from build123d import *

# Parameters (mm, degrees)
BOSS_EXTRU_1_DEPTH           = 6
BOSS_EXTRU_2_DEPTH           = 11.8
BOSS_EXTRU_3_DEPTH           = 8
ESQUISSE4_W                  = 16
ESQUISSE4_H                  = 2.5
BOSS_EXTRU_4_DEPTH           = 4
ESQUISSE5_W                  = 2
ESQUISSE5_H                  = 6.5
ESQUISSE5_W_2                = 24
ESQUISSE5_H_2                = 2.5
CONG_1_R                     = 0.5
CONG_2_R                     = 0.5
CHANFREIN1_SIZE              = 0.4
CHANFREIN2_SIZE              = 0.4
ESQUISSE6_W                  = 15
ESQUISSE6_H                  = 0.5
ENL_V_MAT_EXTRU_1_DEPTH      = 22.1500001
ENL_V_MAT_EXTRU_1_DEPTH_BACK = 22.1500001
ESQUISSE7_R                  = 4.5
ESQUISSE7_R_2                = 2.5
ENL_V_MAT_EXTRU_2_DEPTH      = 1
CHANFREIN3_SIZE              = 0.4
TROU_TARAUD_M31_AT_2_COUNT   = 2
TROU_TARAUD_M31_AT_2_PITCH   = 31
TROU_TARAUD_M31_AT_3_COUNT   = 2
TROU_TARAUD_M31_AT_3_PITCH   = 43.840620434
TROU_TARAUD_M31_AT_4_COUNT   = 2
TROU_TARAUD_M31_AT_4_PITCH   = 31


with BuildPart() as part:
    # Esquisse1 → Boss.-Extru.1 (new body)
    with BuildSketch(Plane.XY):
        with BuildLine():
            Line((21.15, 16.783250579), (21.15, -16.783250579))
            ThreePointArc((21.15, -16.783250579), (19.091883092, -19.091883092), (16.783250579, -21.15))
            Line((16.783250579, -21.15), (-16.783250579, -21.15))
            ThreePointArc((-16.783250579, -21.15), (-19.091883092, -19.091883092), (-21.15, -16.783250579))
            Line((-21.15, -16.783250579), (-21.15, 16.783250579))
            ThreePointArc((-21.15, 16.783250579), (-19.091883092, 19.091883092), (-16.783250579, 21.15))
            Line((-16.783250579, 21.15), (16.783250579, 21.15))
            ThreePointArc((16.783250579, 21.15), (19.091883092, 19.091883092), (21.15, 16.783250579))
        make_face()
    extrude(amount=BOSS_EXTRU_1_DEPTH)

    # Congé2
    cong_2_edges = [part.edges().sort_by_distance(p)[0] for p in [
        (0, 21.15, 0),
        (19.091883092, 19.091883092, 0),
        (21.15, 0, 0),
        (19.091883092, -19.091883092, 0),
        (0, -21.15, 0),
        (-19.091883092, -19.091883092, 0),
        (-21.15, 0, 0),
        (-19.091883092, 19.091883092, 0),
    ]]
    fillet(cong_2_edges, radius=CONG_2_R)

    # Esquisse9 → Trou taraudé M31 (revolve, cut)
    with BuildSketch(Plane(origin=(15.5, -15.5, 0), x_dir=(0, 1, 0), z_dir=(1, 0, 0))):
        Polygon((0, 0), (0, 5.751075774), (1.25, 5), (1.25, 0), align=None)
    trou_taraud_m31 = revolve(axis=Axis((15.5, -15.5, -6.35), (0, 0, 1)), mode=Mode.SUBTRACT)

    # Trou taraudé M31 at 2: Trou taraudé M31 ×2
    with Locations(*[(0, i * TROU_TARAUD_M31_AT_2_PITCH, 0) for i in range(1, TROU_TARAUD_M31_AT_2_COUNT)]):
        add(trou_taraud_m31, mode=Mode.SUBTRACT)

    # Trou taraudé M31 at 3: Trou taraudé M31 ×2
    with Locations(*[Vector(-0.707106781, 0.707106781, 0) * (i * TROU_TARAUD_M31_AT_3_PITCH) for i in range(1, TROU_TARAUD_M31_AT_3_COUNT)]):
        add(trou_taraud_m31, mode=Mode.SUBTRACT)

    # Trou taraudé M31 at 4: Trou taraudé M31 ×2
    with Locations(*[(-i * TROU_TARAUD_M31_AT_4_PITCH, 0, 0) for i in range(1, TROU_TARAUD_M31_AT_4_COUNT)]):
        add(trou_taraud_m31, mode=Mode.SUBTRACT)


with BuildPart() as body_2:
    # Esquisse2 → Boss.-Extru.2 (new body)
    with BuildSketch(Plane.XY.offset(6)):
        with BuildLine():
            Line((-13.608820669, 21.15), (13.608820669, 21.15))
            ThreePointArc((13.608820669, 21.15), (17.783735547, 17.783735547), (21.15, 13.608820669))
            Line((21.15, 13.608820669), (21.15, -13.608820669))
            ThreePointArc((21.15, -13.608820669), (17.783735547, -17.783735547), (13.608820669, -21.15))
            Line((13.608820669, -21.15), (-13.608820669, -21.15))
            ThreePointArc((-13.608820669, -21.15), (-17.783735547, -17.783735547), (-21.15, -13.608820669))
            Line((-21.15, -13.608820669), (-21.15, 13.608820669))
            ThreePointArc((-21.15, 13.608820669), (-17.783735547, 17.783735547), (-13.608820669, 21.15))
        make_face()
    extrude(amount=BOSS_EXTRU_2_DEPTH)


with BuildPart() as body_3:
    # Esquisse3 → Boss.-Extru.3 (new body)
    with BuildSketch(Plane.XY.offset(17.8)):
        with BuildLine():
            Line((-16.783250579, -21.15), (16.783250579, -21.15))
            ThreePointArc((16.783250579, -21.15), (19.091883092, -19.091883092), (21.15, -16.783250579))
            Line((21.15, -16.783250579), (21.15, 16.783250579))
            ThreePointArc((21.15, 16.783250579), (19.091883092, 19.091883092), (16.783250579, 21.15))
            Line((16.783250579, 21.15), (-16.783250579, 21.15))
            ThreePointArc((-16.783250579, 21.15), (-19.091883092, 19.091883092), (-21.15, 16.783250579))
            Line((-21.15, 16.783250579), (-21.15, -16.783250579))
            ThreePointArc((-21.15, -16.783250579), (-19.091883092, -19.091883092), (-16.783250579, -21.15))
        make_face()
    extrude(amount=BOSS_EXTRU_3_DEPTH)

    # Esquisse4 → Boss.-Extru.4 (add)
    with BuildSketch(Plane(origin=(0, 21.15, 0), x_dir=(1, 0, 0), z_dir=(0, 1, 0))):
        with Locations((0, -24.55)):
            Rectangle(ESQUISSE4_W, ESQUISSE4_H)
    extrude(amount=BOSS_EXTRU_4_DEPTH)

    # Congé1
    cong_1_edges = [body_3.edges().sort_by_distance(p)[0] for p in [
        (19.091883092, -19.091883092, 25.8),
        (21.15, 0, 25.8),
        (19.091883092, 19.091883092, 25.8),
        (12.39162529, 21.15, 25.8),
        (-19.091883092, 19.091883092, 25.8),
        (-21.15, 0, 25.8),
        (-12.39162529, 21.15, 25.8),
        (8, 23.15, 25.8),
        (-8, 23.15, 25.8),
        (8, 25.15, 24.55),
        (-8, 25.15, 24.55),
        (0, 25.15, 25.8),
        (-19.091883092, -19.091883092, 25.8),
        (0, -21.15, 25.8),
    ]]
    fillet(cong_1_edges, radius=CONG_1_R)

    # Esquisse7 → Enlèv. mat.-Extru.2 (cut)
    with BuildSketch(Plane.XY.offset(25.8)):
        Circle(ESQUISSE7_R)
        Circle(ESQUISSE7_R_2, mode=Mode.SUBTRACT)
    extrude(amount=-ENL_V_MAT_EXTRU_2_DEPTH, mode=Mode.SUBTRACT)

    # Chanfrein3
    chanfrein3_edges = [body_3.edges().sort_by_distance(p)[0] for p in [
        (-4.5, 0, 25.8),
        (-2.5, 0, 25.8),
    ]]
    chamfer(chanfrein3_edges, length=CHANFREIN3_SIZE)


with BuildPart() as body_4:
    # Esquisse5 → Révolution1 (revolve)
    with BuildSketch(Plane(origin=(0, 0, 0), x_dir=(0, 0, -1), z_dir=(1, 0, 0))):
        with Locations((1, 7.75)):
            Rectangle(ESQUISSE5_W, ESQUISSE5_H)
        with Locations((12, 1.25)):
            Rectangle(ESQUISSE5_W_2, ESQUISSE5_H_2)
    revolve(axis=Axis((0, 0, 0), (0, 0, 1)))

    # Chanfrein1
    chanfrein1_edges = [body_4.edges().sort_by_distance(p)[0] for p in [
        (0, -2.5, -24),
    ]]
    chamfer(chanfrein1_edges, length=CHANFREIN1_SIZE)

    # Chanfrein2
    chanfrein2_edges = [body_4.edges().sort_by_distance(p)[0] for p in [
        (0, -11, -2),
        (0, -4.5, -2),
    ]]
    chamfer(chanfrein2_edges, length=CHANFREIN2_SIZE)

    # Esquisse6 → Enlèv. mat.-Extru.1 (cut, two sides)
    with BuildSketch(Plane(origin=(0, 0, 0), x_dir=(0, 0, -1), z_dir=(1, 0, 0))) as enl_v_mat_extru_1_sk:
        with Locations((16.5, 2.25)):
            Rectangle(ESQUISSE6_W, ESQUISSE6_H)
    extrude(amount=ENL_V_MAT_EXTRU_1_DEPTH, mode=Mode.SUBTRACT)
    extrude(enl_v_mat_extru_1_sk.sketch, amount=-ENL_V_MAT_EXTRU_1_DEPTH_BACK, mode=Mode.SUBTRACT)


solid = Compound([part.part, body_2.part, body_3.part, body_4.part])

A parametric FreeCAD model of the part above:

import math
import FreeCAD as App
import Part
import Sketcher
Q = App.Units.Quantity


def edges_at(feature, points):
    """Names of the edges that pass closest to the given points."""
    edges = feature.Shape.Edges
    near = lambda p: min(range(len(edges)), key=lambda i: edges[i].distToShape(Part.Vertex(*p))[0])
    return sorted({f"Edge{near(p) + 1}" for p in points})


def add_polygon(sketch, points):
    """Adds a closed chain of lines whose ends are joined by coincident constraints."""
    first, n = sketch.GeometryCount, len(points)
    for a, b in zip(points, points[1:] + points[:1]):
        sketch.addGeometry(Part.LineSegment(App.Vector(*a, 0), App.Vector(*b, 0)), False)
    for i in range(n):
        sketch.addConstraint(Sketcher.Constraint("Coincident", first + i, 2, first + (i + 1) % n, 1))

doc = App.newDocument("Part")
body = doc.addObject("PartDesign::Body", "Body")

sketch1 = body.newObject("Sketcher::SketchObject", "Sketch")
sketch1.AttachmentSupport = (doc.getObject("XY_Plane"), [""])
sketch1.MapMode = "FlatFace"
sketch1.addGeometry([
    Part.LineSegment(App.Vector(21.15, -16.783251, 0), App.Vector(21.15, 16.783251, 0)),
    Part.ArcOfCircle(Part.Circle(App.Vector(0, 0, 0), App.Vector(0, 0, 1), 27), math.radians(38.433206), math.radians(51.566794)),
    Part.LineSegment(App.Vector(16.783251, 21.15, 0), App.Vector(-16.783251, 21.15, 0)),
    Part.ArcOfCircle(Part.Circle(App.Vector(0, 0, 0), App.Vector(0, 0, 1), 27), math.radians(128.433206), math.radians(141.566794)),
    Part.LineSegment(App.Vector(-21.15, 16.783251, 0), App.Vector(-21.15, -16.783251, 0)),
    Part.ArcOfCircle(Part.Circle(App.Vector(0, 0, 0), App.Vector(0, 0, 1), 27), math.radians(-141.566794), math.radians(-128.433206)),
    Part.LineSegment(App.Vector(-16.783251, -21.15, 0), App.Vector(16.783251, -21.15, 0)),
    Part.ArcOfCircle(Part.Circle(App.Vector(0, 0, 0), App.Vector(0, 0, 1), 27), math.radians(-51.566794), math.radians(-38.433206)),
], False)
sketch1.addConstraint([
    Sketcher.Constraint("Coincident", 0, 2, 1, 1),
    Sketcher.Constraint("Coincident", 1, 2, 2, 1),
    Sketcher.Constraint("Coincident", 2, 2, 3, 1),
    Sketcher.Constraint("Coincident", 3, 2, 4, 1),
    Sketcher.Constraint("Coincident", 4, 2, 5, 1),
    Sketcher.Constraint("Coincident", 5, 2, 6, 1),
    Sketcher.Constraint("Coincident", 6, 2, 7, 1),
    Sketcher.Constraint("Coincident", 7, 2, 0, 1),
    Sketcher.Constraint("Vertical", 0),
    Sketcher.Constraint("Horizontal", 2),
    Sketcher.Constraint("Vertical", 4),
    Sketcher.Constraint("Horizontal", 6),
    Sketcher.Constraint("Coincident", 1, 3, -1, 1),
    Sketcher.Constraint("Coincident", 3, 3, -1, 1),
    Sketcher.Constraint("Coincident", 5, 3, -1, 1),
    Sketcher.Constraint("Coincident", 7, 3, -1, 1),
    Sketcher.Constraint("Equal", 1, 3),
    Sketcher.Constraint("Equal", 3, 5),
    Sketcher.Constraint("Equal", 5, 7),
    Sketcher.Constraint("Horizontal", 0, 2, 3, 2),
    Sketcher.Constraint("Vertical", 2, 2, 5, 2),
    Sketcher.Constraint("Equal", 6, 0),
    Sketcher.Constraint("Radius", 1, Q("27 mm")),
    Sketcher.Constraint("DistanceX", -1, 1, 0, 2, Q("21.15 mm")),
])
pad1 = body.newObject("PartDesign::Pad", "Pad")
pad1.Profile = sketch1
pad1.Length = 6
doc.recompute()

fillet = body.newObject("PartDesign::Fillet", "Fillet")
fillet.Base = (pad1, edges_at(pad1, [
    (0, 21.15, 0),
    (19.092, 19.092, 0),
    (21.15, 0, 0),
    (19.092, -19.092, 0),
    (0, -21.15, 0),
    (-19.092, -19.092, 0),
    (-21.15, 0, 0),
    (-19.092, 19.092, 0),
]))
fillet.Radius = 0.5

sketch2 = body.newObject("Sketcher::SketchObject", "Sketch001")
sketch2.AttachmentSupport = (doc.getObject("YZ_Plane"), [""])
sketch2.MapMode = "FlatFace"
sketch2.AttachmentOffset = App.Placement(App.Vector(0, 0, 15.5), App.Rotation())
add_polygon(sketch2, [(-15.5, 5.751076), (-15.5, 0), (-14.25, 0), (-14.25, 5)])
sketch2.addGeometry(Part.LineSegment(App.Vector(-15.5, 0, 0), App.Vector(-15.5, 5.751076, 0)), True)
sketch2.addConstraint([
    Sketcher.Constraint("Vertical", 0),
    Sketcher.Constraint("Horizontal", 1),
    Sketcher.Constraint("Vertical", 2),
    Sketcher.Constraint("Vertical", 4),
    Sketcher.Constraint("Coincident", 4, 1, 0, 2),
    Sketcher.Constraint("PointOnObject", 0, 2, -1),
    Sketcher.Constraint("Equal", 0, 4),
    Sketcher.Constraint("DistanceY", 2, 1, 2, 2, Q("5 mm")),
    Sketcher.Constraint("Angle", 3, Q("149 deg")),
    Sketcher.Constraint("DistanceX", 1, 1, 1, 2, Q("1.25 mm")),
    Sketcher.Constraint("DistanceX", 0, 2, -1, 1, Q("15.5 mm")),
])
groove = body.newObject("PartDesign::Groove", "Groove")
groove.Profile = sketch2
groove.ReferenceAxis = (sketch2, ["Axis0"])
groove.Angle = 360
doc.recompute()

linearpattern = body.newObject("PartDesign::LinearPattern", "LinearPattern")
linearpattern.Originals = [groove]
linearpattern.Direction = (doc.getObject("Y_Axis"), [""])
linearpattern.Mode = "offset"
linearpattern.Offset = 31
linearpattern.Occurrences = 2
body.Tip = linearpattern
doc.recompute()

datumline = body.newObject("PartDesign::Line", "DatumLine")
datumline.Placement = App.Placement(App.Vector(0, 0, 0), App.Rotation(App.Vector(0, 0, 1), App.Vector(-0.707106781, 0.707106781, 0)))
linearpattern2 = body.newObject("PartDesign::LinearPattern", "LinearPattern001")
linearpattern2.Originals = [groove]
linearpattern2.Direction = (datumline, [""])
linearpattern2.Mode = "offset"
linearpattern2.Offset = 43.84062
linearpattern2.Occurrences = 2
body.Tip = linearpattern2
doc.recompute()

linearpattern3 = body.newObject("PartDesign::LinearPattern", "LinearPattern002")
linearpattern3.Originals = [groove]
linearpattern3.Direction = (doc.getObject("X_Axis"), [""])
linearpattern3.Mode = "offset"
linearpattern3.Offset = 31
linearpattern3.Occurrences = 2
linearpattern3.Reversed = True
body.Tip = linearpattern3
body2 = doc.addObject("PartDesign::Body", "Body001")

sketch3 = body2.newObject("Sketcher::SketchObject", "Sketch002")
sketch3.AttachmentSupport = (doc.getObject("XY_Plane001"), [""])
sketch3.MapMode = "FlatFace"
sketch3.AttachmentOffset = App.Placement(App.Vector(0, 0, 6), App.Rotation())
sketch3.addGeometry([
    Part.LineSegment(App.Vector(13.608821, 21.15, 0), App.Vector(-13.608821, 21.15, 0)),
    Part.ArcOfCircle(Part.Circle(App.Vector(0, 0, 0), App.Vector(0, 0, 1), 25.15), math.radians(122.758974), math.radians(147.241026)),
    Part.LineSegment(App.Vector(-21.15, 13.608821, 0), App.Vector(-21.15, -13.608821, 0)),
    Part.ArcOfCircle(Part.Circle(App.Vector(0, 0, 0), App.Vector(0, 0, 1), 25.15), math.radians(-147.241026), math.radians(-122.758974)),
    Part.LineSegment(App.Vector(-13.608821, -21.15, 0), App.Vector(13.608821, -21.15, 0)),
    Part.ArcOfCircle(Part.Circle(App.Vector(0, 0, 0), App.Vector(0, 0, 1), 25.15), math.radians(-57.241026), math.radians(-32.758974)),
    Part.LineSegment(App.Vector(21.15, -13.608821, 0), App.Vector(21.15, 13.608821, 0)),
    Part.ArcOfCircle(Part.Circle(App.Vector(0, 0, 0), App.Vector(0, 0, 1), 25.15), math.radians(32.758974), math.radians(57.241026)),
], False)
sketch3.addConstraint([
    Sketcher.Constraint("Coincident", 0, 2, 1, 1),
    Sketcher.Constraint("Coincident", 1, 2, 2, 1),
    Sketcher.Constraint("Coincident", 2, 2, 3, 1),
    Sketcher.Constraint("Coincident", 3, 2, 4, 1),
    Sketcher.Constraint("Coincident", 4, 2, 5, 1),
    Sketcher.Constraint("Coincident", 5, 2, 6, 1),
    Sketcher.Constraint("Coincident", 6, 2, 7, 1),
    Sketcher.Constraint("Coincident", 7, 2, 0, 1),
    Sketcher.Constraint("Horizontal", 0),
    Sketcher.Constraint("Vertical", 2),
    Sketcher.Constraint("Horizontal", 4),
    Sketcher.Constraint("Vertical", 6),
    Sketcher.Constraint("Coincident", 1, 3, -1, 1),
    Sketcher.Constraint("Coincident", 3, 3, -1, 1),
    Sketcher.Constraint("Coincident", 5, 3, -1, 1),
    Sketcher.Constraint("Coincident", 7, 3, -1, 1),
    Sketcher.Constraint("Equal", 1, 3),
    Sketcher.Constraint("Equal", 3, 5),
    Sketcher.Constraint("Equal", 5, 7),
    Sketcher.Constraint("Horizontal", 2, 2, 5, 2),
    Sketcher.Constraint("Vertical", 0, 2, 3, 2),
    Sketcher.Constraint("Equal", 4, 2),
    Sketcher.Constraint("Radius", 1, Q("25.15 mm")),
    Sketcher.Constraint("DistanceY", -1, 1, 0, 2, Q("21.15 mm")),
])
pad2 = body2.newObject("PartDesign::Pad", "Pad001")
pad2.Profile = sketch3
pad2.Length = 11.8
body3 = doc.addObject("PartDesign::Body", "Body002")

sketch4 = body3.newObject("Sketcher::SketchObject", "Sketch003")
sketch4.AttachmentSupport = (doc.getObject("XY_Plane002"), [""])
sketch4.MapMode = "FlatFace"
sketch4.AttachmentOffset = App.Placement(App.Vector(0, 0, 17.8), App.Rotation())
sketch4.addGeometry([
    Part.LineSegment(App.Vector(-16.783251, -21.15, 0), App.Vector(16.783251, -21.15, 0)),
    Part.ArcOfCircle(Part.Circle(App.Vector(0, 0, 0), App.Vector(0, 0, 1), 27), math.radians(-51.566794), math.radians(-38.433206)),
    Part.LineSegment(App.Vector(21.15, -16.783251, 0), App.Vector(21.15, 16.783251, 0)),
    Part.ArcOfCircle(Part.Circle(App.Vector(0, 0, 0), App.Vector(0, 0, 1), 27), math.radians(38.433206), math.radians(51.566794)),
    Part.LineSegment(App.Vector(16.783251, 21.15, 0), App.Vector(-16.783251, 21.15, 0)),
    Part.ArcOfCircle(Part.Circle(App.Vector(0, 0, 0), App.Vector(0, 0, 1), 27), math.radians(128.433206), math.radians(141.566794)),
    Part.LineSegment(App.Vector(-21.15, 16.783251, 0), App.Vector(-21.15, -16.783251, 0)),
    Part.ArcOfCircle(Part.Circle(App.Vector(0, 0, 0), App.Vector(0, 0, 1), 27), math.radians(-141.566794), math.radians(-128.433206)),
], False)
sketch4.addConstraint([
    Sketcher.Constraint("Coincident", 0, 2, 1, 1),
    Sketcher.Constraint("Coincident", 1, 2, 2, 1),
    Sketcher.Constraint("Coincident", 2, 2, 3, 1),
    Sketcher.Constraint("Coincident", 3, 2, 4, 1),
    Sketcher.Constraint("Coincident", 4, 2, 5, 1),
    Sketcher.Constraint("Coincident", 5, 2, 6, 1),
    Sketcher.Constraint("Coincident", 6, 2, 7, 1),
    Sketcher.Constraint("Coincident", 7, 2, 0, 1),
    Sketcher.Constraint("Horizontal", 0),
    Sketcher.Constraint("Vertical", 2),
    Sketcher.Constraint("Horizontal", 4),
    Sketcher.Constraint("Vertical", 6),
    Sketcher.Constraint("Coincident", 1, 3, -1, 1),
    Sketcher.Constraint("Coincident", 3, 3, -1, 1),
    Sketcher.Constraint("Coincident", 5, 3, -1, 1),
    Sketcher.Constraint("Coincident", 7, 3, -1, 1),
    Sketcher.Constraint("Equal", 1, 3),
    Sketcher.Constraint("Equal", 3, 5),
    Sketcher.Constraint("Equal", 5, 7),
    Sketcher.Constraint("Horizontal", 2, 2, 5, 2),
    Sketcher.Constraint("Vertical", 0, 2, 3, 2),
    Sketcher.Constraint("Equal", 4, 2),
    Sketcher.Constraint("Radius", 1, Q("27 mm")),
    Sketcher.Constraint("DistanceY", 0, 2, -1, 1, Q("21.15 mm")),
])
pad3 = body3.newObject("PartDesign::Pad", "Pad002")
pad3.Profile = sketch4
pad3.Length = 8

sketch5 = body3.newObject("Sketcher::SketchObject", "Sketch004")
sketch5.AttachmentSupport = (doc.getObject("XZ_Plane002"), [""])
sketch5.MapMode = "FlatFace"
sketch5.AttachmentOffset = App.Placement(App.Vector(0, 0, -21.15), App.Rotation())
add_polygon(sketch5, [(-8, 23.3), (-8, 25.8), (8, 25.8), (8, 23.3)])
sketch5.addConstraint([
    Sketcher.Constraint("Vertical", 0),
    Sketcher.Constraint("Horizontal", 1),
    Sketcher.Constraint("Vertical", 2),
    Sketcher.Constraint("Horizontal", 3),
    Sketcher.Constraint("DistanceX", 1, 1, 1, 2, Q("16 mm")),
    Sketcher.Constraint("DistanceY", 0, 1, 0, 2, Q("2.5 mm")),
    Sketcher.Constraint("DistanceX", 0, 2, -1, 1, Q("8 mm")),
    Sketcher.Constraint("DistanceY", -1, 1, 0, 2, Q("25.8 mm")),
])
pad4 = body3.newObject("PartDesign::Pad", "Pad003")
pad4.Profile = sketch5
pad4.Length = 4
pad4.Reversed = True
doc.recompute()

fillet2 = body3.newObject("PartDesign::Fillet", "Fillet001")
fillet2.Base = (pad4, edges_at(pad4, [
    (19.092, -19.092, 25.8),
    (21.15, 0, 25.8),
    (19.092, 19.092, 25.8),
    (12.392, 21.15, 25.8),
    (-19.092, 19.092, 25.8),
    (-21.15, 0, 25.8),
    (-12.392, 21.15, 25.8),
    (8, 23.15, 25.8),
    (-8, 23.15, 25.8),
    (8, 25.15, 24.55),
    (-8, 25.15, 24.55),
    (0, 25.15, 25.8),
    (-19.092, -19.092, 25.8),
    (0, -21.15, 25.8),
]))
fillet2.Radius = 0.5

sketch6 = body3.newObject("Sketcher::SketchObject", "Sketch005")
sketch6.AttachmentSupport = (doc.getObject("XY_Plane002"), [""])
sketch6.MapMode = "FlatFace"
sketch6.AttachmentOffset = App.Placement(App.Vector(0, 0, 25.8), App.Rotation())
sketch6.addGeometry([
    Part.Circle(App.Vector(0, 0, 0), App.Vector(0, 0, 1), 4.5),
    Part.Circle(App.Vector(0, 0, 0), App.Vector(0, 0, 1), 2.5),
], False)
sketch6.addConstraint([
    Sketcher.Constraint("Coincident", 0, 3, -1, 1),
    Sketcher.Constraint("Coincident", 1, 3, -1, 1),
    Sketcher.Constraint("Diameter", 0, Q("9 mm")),
    Sketcher.Constraint("Diameter", 1, Q("5 mm")),
])
pocket1 = body3.newObject("PartDesign::Pocket", "Pocket")
pocket1.Profile = sketch6
pocket1.Length = 1
doc.recompute()

chamfer = body3.newObject("PartDesign::Chamfer", "Chamfer")
chamfer.Base = (pocket1, edges_at(pocket1, [(-4.5, 0, 25.8), (-2.5, 0, 25.8)]))
chamfer.Size = 0.4
body4 = doc.addObject("PartDesign::Body", "Body003")
body4.AllowCompound = True

sketch7 = body4.newObject("Sketcher::SketchObject", "Sketch006")
sketch7.AttachmentSupport = (doc.getObject("YZ_Plane003"), [""])
sketch7.MapMode = "FlatFace"
add_polygon(sketch7, [(11, 0), (4.5, 0), (4.5, -2), (11, -2)])
add_polygon(sketch7, [(2.5, 0), (0, 0), (0, -24), (2.5, -24)])
sketch7.addConstraint([
    Sketcher.Constraint("Horizontal", 0),
    Sketcher.Constraint("Vertical", 1),
    Sketcher.Constraint("Horizontal", 2),
    Sketcher.Constraint("Vertical", 3),
    Sketcher.Constraint("Horizontal", 4),
    Sketcher.Constraint("Vertical", 5),
    Sketcher.Constraint("Horizontal", 6),
    Sketcher.Constraint("Vertical", 7),
    Sketcher.Constraint("Coincident", 4, 2, -1, 1),
    Sketcher.Constraint("PointOnObject", 0, 2, -1),
    Sketcher.Constraint("DistanceY", 1, 2, 1, 1, Q("2 mm")),
    Sketcher.Constraint("DistanceY", 5, 2, 5, 1, Q("24 mm")),
    Sketcher.Constraint("DistanceX", 0, 2, 0, 1, Q("6.5 mm")),
    Sketcher.Constraint("DistanceX", 4, 2, 4, 1, Q("2.5 mm")),
    Sketcher.Constraint("DistanceX", -1, 1, 2, 2, Q("11 mm")),
])
revolution = body4.newObject("PartDesign::Revolution", "Revolution")
revolution.Profile = sketch7
revolution.ReferenceAxis = (sketch7, ["V_Axis"])
revolution.Angle = 360
doc.recompute()

chamfer2 = body4.newObject("PartDesign::Chamfer", "Chamfer001")
chamfer2.Base = (revolution, edges_at(revolution, [(0, -2.5, -24)]))
chamfer2.Size = 0.4
doc.recompute()

chamfer3 = body4.newObject("PartDesign::Chamfer", "Chamfer002")
chamfer3.Base = (chamfer2, edges_at(chamfer2, [(0, -11, -2), (0, -4.5, -2)]))
chamfer3.Size = 0.4

sketch8 = body4.newObject("Sketcher::SketchObject", "Sketch007")
sketch8.AttachmentSupport = (doc.getObject("YZ_Plane003"), [""])
sketch8.MapMode = "FlatFace"
add_polygon(sketch8, [(2.5, -9), (2, -9), (2, -24), (2.5, -24)])
sketch8.addConstraint([
    Sketcher.Constraint("Horizontal", 0),
    Sketcher.Constraint("Vertical", 1),
    Sketcher.Constraint("Horizontal", 2),
    Sketcher.Constraint("Vertical", 3),
    Sketcher.Constraint("DistanceY", 1, 2, 1, 1, Q("15 mm")),
    Sketcher.Constraint("DistanceX", 0, 2, 0, 1, Q("0.5 mm")),
    Sketcher.Constraint("DistanceX", -1, 1, 0, 2, Q("2 mm")),
    Sketcher.Constraint("DistanceY", 0, 2, -1, 1, Q("9 mm")),
])
pocket2 = body4.newObject("PartDesign::Pocket", "Pocket001")
pocket2.Profile = sketch8
pocket2.Type = "ThroughAll"
pocket2.Midplane = True

doc.recompute()
